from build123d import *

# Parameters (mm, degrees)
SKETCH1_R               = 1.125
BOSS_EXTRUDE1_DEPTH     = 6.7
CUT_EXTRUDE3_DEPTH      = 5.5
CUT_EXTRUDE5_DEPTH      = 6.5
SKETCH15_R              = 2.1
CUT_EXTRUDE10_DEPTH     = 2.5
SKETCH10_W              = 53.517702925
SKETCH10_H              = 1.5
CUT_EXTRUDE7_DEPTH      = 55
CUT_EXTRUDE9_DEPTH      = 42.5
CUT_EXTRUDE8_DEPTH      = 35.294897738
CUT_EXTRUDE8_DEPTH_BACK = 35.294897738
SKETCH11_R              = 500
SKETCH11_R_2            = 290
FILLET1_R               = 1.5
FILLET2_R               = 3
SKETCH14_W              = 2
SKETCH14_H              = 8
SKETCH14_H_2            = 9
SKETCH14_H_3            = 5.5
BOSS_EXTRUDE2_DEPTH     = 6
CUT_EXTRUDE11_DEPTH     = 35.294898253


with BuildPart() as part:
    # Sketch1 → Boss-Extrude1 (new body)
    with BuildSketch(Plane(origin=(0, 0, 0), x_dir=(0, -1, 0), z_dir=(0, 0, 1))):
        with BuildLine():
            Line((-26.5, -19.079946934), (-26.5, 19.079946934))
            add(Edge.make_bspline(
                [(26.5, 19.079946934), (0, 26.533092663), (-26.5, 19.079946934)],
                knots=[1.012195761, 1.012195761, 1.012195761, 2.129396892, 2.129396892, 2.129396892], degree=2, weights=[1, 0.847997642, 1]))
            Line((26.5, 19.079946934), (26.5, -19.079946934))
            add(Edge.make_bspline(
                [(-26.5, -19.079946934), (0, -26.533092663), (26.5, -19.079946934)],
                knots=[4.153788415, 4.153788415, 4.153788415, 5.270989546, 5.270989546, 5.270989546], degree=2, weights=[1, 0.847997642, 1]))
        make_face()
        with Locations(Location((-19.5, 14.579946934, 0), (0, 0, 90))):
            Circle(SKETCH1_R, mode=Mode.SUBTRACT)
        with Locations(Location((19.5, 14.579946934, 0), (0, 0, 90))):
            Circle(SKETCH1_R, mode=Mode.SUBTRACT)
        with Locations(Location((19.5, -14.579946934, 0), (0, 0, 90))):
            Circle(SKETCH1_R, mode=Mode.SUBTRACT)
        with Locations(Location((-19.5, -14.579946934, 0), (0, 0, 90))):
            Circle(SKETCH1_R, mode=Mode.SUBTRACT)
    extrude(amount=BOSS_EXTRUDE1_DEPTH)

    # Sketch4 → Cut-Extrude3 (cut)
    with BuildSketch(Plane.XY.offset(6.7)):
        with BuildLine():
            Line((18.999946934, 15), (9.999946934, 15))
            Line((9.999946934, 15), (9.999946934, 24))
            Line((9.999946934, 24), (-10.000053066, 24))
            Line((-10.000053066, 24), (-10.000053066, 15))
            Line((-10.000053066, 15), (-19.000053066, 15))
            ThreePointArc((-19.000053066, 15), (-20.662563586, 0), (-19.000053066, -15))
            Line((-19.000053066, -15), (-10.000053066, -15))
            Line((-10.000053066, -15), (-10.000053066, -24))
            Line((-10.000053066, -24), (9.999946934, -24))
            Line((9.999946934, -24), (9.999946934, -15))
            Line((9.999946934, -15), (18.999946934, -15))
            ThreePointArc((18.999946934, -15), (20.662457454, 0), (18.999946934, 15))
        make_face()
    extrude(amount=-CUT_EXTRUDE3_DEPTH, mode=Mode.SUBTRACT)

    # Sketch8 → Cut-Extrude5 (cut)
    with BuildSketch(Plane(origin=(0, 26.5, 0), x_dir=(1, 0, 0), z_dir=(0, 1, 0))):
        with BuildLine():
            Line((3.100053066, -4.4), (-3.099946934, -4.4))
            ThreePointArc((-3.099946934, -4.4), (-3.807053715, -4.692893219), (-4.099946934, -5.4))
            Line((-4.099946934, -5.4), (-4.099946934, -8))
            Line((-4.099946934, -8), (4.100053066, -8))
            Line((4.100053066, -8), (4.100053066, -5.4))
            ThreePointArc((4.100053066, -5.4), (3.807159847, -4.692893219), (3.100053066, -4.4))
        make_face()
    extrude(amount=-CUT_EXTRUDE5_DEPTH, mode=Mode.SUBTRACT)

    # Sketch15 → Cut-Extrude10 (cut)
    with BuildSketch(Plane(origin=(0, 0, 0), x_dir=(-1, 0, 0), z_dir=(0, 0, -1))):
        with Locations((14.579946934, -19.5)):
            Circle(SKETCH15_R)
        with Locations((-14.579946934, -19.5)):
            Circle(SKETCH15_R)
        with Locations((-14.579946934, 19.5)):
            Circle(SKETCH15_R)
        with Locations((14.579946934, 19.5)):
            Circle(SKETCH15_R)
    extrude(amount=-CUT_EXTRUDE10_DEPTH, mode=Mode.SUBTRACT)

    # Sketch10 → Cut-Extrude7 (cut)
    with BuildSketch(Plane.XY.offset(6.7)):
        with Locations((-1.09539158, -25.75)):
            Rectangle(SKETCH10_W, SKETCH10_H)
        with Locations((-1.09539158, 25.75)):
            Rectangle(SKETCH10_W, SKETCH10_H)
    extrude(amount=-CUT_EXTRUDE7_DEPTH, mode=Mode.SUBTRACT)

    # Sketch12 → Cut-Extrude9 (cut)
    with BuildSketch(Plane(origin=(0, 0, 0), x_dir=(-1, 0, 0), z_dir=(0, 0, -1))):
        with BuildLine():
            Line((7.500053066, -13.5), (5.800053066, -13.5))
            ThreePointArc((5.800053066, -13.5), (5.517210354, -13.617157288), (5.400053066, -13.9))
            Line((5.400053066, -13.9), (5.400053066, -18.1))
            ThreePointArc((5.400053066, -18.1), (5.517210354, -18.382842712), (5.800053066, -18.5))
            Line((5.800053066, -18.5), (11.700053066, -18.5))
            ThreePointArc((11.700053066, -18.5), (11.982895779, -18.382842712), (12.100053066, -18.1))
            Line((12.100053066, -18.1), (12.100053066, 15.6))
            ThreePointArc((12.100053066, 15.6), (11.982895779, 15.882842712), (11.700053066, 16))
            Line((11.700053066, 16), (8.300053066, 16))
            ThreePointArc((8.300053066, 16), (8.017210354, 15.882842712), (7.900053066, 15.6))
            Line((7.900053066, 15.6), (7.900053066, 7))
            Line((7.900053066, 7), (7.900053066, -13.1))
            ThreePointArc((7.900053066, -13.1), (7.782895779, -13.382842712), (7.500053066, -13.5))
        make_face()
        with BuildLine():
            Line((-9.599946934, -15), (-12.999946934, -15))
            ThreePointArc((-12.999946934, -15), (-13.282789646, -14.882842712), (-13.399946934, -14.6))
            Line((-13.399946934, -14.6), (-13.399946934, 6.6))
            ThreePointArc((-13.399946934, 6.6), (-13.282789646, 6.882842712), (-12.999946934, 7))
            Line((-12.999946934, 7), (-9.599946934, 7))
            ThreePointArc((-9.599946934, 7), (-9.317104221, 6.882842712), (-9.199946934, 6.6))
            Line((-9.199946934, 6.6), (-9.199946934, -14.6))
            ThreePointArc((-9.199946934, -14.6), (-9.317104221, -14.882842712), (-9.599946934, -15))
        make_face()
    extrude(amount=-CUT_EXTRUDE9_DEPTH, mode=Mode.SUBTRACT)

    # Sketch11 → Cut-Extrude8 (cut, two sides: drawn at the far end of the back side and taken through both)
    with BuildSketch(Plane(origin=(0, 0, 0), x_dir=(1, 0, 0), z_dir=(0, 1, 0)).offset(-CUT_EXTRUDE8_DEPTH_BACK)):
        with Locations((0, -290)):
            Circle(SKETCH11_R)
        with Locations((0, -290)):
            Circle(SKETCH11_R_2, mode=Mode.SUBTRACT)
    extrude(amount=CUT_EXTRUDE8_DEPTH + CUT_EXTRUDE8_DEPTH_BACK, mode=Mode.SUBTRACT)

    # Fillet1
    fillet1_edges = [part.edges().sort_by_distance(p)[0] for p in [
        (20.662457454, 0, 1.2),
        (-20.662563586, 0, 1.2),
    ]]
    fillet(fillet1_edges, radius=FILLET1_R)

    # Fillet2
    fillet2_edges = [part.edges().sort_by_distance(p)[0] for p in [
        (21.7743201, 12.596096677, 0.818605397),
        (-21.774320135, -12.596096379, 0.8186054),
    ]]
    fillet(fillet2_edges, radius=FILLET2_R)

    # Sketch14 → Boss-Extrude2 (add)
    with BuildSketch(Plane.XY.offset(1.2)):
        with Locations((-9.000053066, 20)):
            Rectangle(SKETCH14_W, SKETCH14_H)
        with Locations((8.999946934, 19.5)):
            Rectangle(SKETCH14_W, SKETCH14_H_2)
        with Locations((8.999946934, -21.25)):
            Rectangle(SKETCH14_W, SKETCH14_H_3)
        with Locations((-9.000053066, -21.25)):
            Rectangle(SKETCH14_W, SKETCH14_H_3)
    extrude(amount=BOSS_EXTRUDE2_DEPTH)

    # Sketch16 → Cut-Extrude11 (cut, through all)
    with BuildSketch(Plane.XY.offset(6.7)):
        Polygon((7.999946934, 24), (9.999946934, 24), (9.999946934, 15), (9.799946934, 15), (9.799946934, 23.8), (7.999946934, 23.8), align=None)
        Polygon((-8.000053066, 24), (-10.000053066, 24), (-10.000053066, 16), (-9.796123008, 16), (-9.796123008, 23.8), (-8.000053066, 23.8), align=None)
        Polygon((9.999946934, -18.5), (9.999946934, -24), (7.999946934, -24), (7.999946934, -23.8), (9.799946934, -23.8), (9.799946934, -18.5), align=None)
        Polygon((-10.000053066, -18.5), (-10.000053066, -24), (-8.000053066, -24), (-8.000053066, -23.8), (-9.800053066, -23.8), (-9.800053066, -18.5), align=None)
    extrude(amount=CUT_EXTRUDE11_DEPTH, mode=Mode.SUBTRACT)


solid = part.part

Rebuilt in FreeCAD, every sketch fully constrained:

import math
import FreeCAD as App
import Part
import Sketcher
Q = App.Units.Quantity


def edges_at(feature, points):
    """Names of the edges that pass closest to the given points."""
    edges = feature.Shape.Edges
    near = lambda p: min(range(len(edges)), key=lambda i: edges[i].distToShape(Part.Vertex(*p))[0])
    return sorted({f"Edge{near(p) + 1}" for p in points})


def add_polygon(sketch, points):
    """Adds a closed chain of lines whose ends are joined by coincident constraints."""
    first, n = sketch.GeometryCount, len(points)
    for a, b in zip(points, points[1:] + points[:1]):
        sketch.addGeometry(Part.LineSegment(App.Vector(*a, 0), App.Vector(*b, 0)), False)
    for i in range(n):
        sketch.addConstraint(Sketcher.Constraint("Coincident", first + i, 2, first + (i + 1) % n, 1))

doc = App.newDocument("Part")
params = doc.addObject("Spreadsheet::Sheet", "Params")
for row, (alias, value) in enumerate([
    ("sketch1_diameter", "2.25 mm"),
    ("pad1_length", "6.7 mm"),
    ("sketch2_radius", "68.5 mm"),
    ("sketch2_width", "9 mm"),
    ("sketch2_width2", "20 mm"),
    ("pocket1_length", "5.5 mm"),
    ("sketch3_radius", "1 mm"),
    ("sketch3_width", "6.2 mm"),
    ("sketch3_height", "2.6 mm"),
    ("pocket2_length", "6.5 mm"),
    ("sketch4_diameter", "4.2 mm"),
    ("pocket3_length", "2.5 mm"),
    ("sketch5_height", "1.5 mm"),
    ("pocket4_length", "55 mm"),
    ("sketch6_radius", "0.4 mm"),
    ("sketch6_width", "1.7 mm"),
    ("sketch6_width2", "5.9 mm"),
    ("sketch6_height", "4.2 mm"),
    ("sketch6_height2", "33.7 mm"),
    ("pocket5_length", "42.5 mm"),
    ("sketch7_diameter", "1000 mm"),
    ("sketch7_diameter2", "580 mm"),
    ("fillet_radius", "1.5 mm"),
    ("fillet2_radius", "3 mm"),
    ("sketch8_width", "2 mm"),
    ("sketch8_height", "8 mm"),
    ("sketch8_height2", "9 mm"),
    ("sketch8_height3", "5.5 mm"),
    ("pad2_length", "6 mm"),
    ("sketch9_width", "2 mm"),
    ("sketch9_height", "9 mm"),
    ("sketch9_height2", "8 mm"),
    ("sketch9_width2", "1.8 mm"),
    ("sketch9_height3", "5.5 mm"),
], start=1):
    params.set(f"A{row}", alias)
    params.set(f"B{row}", "=" + value)
    params.setAlias(f"B{row}", alias)

body = doc.addObject("PartDesign::Body", "Body")

# Sketch on XY plane
sketch1 = body.newObject("Sketcher::SketchObject", "Sketch")
sketch1.AttachmentSupport = (doc.getObject("XY_Plane"), [""])
sketch1.MapMode = "FlatFace"
sketch1.addGeometry([
    Part.LineSegment(App.Vector(19.079947, 26.5, 0), App.Vector(-19.079947, 26.5, 0)),  # 0
    Part.BSplineCurve([App.Vector(-19.079947, 26.5, 0), App.Vector(-26.533093, 0, 0), App.Vector(-19.079947, -26.5, 0)], [3, 3], [4.153788415, 5.270989546], False, 2, [1, 0.847997642, 1], False),  # 1
    Part.LineSegment(App.Vector(-19.079947, -26.5, 0), App.Vector(19.079947, -26.5, 0)),  # 2
    Part.BSplineCurve([App.Vector(19.079947, -26.5, 0), App.Vector(26.533093, 0, 0), App.Vector(19.079947, 26.5, 0)], [3, 3], [1.012195761, 2.129396892], False, 2, [1, 0.847997642, 1], False),  # 3
    Part.Circle(App.Vector(-14.579947, -19.5, 0), App.Vector(0, 0, 1), 1.125),  # 4
    Part.Circle(App.Vector(-14.579947, 19.5, 0), App.Vector(0, 0, 1), 1.125),  # 5
    Part.Circle(App.Vector(14.579947, -19.5, 0), App.Vector(0, 0, 1), 1.125),  # 6
    Part.Circle(App.Vector(14.579947, 19.5, 0), App.Vector(0, 0, 1), 1.125),  # 7
], False)
sketch1.addConstraint([
    Sketcher.Constraint("Block", 1),
    Sketcher.Constraint("Block", 3),
    Sketcher.Constraint("Coincident", 0, 2, 1, 1),
    Sketcher.Constraint("Coincident", 1, 2, 2, 1),
    Sketcher.Constraint("Coincident", 2, 2, 3, 1),
    Sketcher.Constraint("Coincident", 3, 2, 0, 1),
    Sketcher.Constraint("Equal", 4, 5),
    Sketcher.Constraint("Equal", 5, 6),
    Sketcher.Constraint("Equal", 6, 7),
    Sketcher.Constraint("Symmetric", 5, 3, 6, 3, -1, 1),
    Sketcher.Constraint("Symmetric", 4, 3, 7, 3, -1, 1),
    Sketcher.Constraint("Symmetric", 4, 3, 6, 3, -2),
    Sketcher.Constraint("Diameter", 4, Q("2.25 mm")),
    Sketcher.Constraint("DistanceY", 4, 3, 5, 3, Q("39 mm")),
    Sketcher.Constraint("DistanceX", 0, 2, 5, 3, Q("4.5 mm")),
])
sketch1.setExpression("Constraints[12]", "Params.sketch1_diameter")
pad1 = body.newObject("PartDesign::Pad", "Pad")
pad1.Profile = sketch1
pad1.setExpression("Length", "Params.pad1_length")

# Sketch on XY plane
sketch2 = body.newObject("Sketcher::SketchObject", "Sketch001")
sketch2.AttachmentSupport = (doc.getObject("XY_Plane"), [""])
sketch2.MapMode = "FlatFace"
sketch2.AttachmentOffset = App.Placement(App.Vector(0, 0, 6.7), App.Rotation())
sketch2.addGeometry([
    Part.LineSegment(App.Vector(18.999947, 15, 0), App.Vector(9.999947, 15, 0)),  # 0
    Part.LineSegment(App.Vector(9.999947, 15, 0), App.Vector(9.999947, 24, 0)),  # 1
    Part.LineSegment(App.Vector(9.999947, 24, 0), App.Vector(-10.000053, 24, 0)),  # 2
    Part.LineSegment(App.Vector(-10.000053, 24, 0), App.Vector(-10.000053, 15, 0)),  # 3
    Part.LineSegment(App.Vector(-10.000053, 15, 0), App.Vector(-19.000053, 15, 0)),  # 4
    Part.ArcOfCircle(Part.Circle(App.Vector(47.837436, 0, 0), App.Vector(0, 0, 1), 68.5), math.radians(167.350981), math.radians(192.649019)),  # 5
    Part.LineSegment(App.Vector(-19.000053, -15, 0), App.Vector(-10.000053, -15, 0)),  # 6
    Part.LineSegment(App.Vector(-10.000053, -15, 0), App.Vector(-10.000053, -24, 0)),  # 7
    Part.LineSegment(App.Vector(-10.000053, -24, 0), App.Vector(9.999947, -24, 0)),  # 8
    Part.LineSegment(App.Vector(9.999947, -24, 0), App.Vector(9.999947, -15, 0)),  # 9
    Part.LineSegment(App.Vector(9.999947, -15, 0), App.Vector(18.999947, -15, 0)),  # 10
    Part.ArcOfCircle(Part.Circle(App.Vector(-47.837543, 0, 0), App.Vector(0, 0, 1), 68.5), math.radians(-12.649019), math.radians(12.649019)),  # 11
], False)
sketch2.addConstraint([
    Sketcher.Constraint("Coincident", 0, 2, 1, 1),
    Sketcher.Constraint("Coincident", 1, 2, 2, 1),
    Sketcher.Constraint("Coincident", 2, 2, 3, 1),
    Sketcher.Constraint("Coincident", 3, 2, 4, 1),
    Sketcher.Constraint("Coincident", 4, 2, 5, 1),
    Sketcher.Constraint("Coincident", 5, 2, 6, 1),
    Sketcher.Constraint("Coincident", 6, 2, 7, 1),
    Sketcher.Constraint("Coincident", 7, 2, 8, 1),
    Sketcher.Constraint("Coincident", 8, 2, 9, 1),
    Sketcher.Constraint("Coincident", 9, 2, 10, 1),
    Sketcher.Constraint("Coincident", 10, 2, 11, 1),
    Sketcher.Constraint("Coincident", 11, 2, 0, 1),
    Sketcher.Constraint("Horizontal", 0),
    Sketcher.Constraint("Vertical", 1),
    Sketcher.Constraint("Horizontal", 2),
    Sketcher.Constraint("Vertical", 3),
    Sketcher.Constraint("Horizontal", 4),
    Sketcher.Constraint("Horizontal", 6),
    Sketcher.Constraint("Vertical", 7),
    Sketcher.Constraint("Horizontal", 8),
    Sketcher.Constraint("Vertical", 9),
    Sketcher.Constraint("Horizontal", 10),
    Sketcher.Constraint("Equal", 5, 11),
    Sketcher.Constraint("Symmetric", 4, 2, 5, 2, -1),
    Sketcher.Constraint("Symmetric", 2, 2, 7, 2, -1),
    Sketcher.Constraint("Symmetric", 0, 2, 9, 2, -1),
    Sketcher.Constraint("PointOnObject", 11, 3, -1),
    Sketcher.Constraint("Horizontal", 0, 2, 3, 2),
    Sketcher.Constraint("Equal", 0, 4),
    Sketcher.Constraint("Equal", 10, 1),
    Sketcher.Constraint("Radius", 5, Q("68.5 mm")),
    Sketcher.Constraint("DistanceX", 0, 2, 0, 1, Q("9 mm")),
    Sketcher.Constraint("DistanceX", 2, 2, 2, 1, Q("20 mm")),
    Sketcher.Constraint("DistanceY", -1, 1, 0, 2, Q("15 mm")),
    Sketcher.Constraint("DistanceX", -1, 1, 5, 3, Q("47.837436 mm")),
])
sketch2.setExpression("Constraints[30]", "Params.sketch2_radius")
sketch2.setExpression("Constraints[31]", "Params.sketch2_width")
sketch2.setExpression("Constraints[32]", "Params.sketch2_width2")
pocket1 = body.newObject("PartDesign::Pocket", "Pocket")
pocket1.Profile = sketch2
pocket1.setExpression("Length", "Params.pocket1_length")

# Sketch on XZ plane
sketch3 = body.newObject("Sketcher::SketchObject", "Sketch002")
sketch3.AttachmentSupport = (doc.getObject("XZ_Plane"), [""])
sketch3.MapMode = "FlatFace"
sketch3.AttachmentOffset = App.Placement(App.Vector(0, 0, -26.5), App.Rotation())
sketch3.addGeometry([
    Part.LineSegment(App.Vector(3.100053, 4.4, 0), App.Vector(-3.099947, 4.4, 0)),  # 0
    Part.ArcOfCircle(Part.Circle(App.Vector(-3.099947, 5.4, 0), App.Vector(0, 0, 1), 1), math.radians(-180), math.radians(-90)),  # 1
    Part.LineSegment(App.Vector(-4.099947, 5.4, 0), App.Vector(-4.099947, 8, 0)),  # 2
    Part.LineSegment(App.Vector(-4.099947, 8, 0), App.Vector(4.100053, 8, 0)),  # 3
    Part.LineSegment(App.Vector(4.100053, 8, 0), App.Vector(4.100053, 5.4, 0)),  # 4
    Part.ArcOfCircle(Part.Circle(App.Vector(3.100053, 5.4, 0), App.Vector(0, 0, 1), 1), math.radians(-90), math.radians(0)),  # 5
], False)
sketch3.addConstraint([
    Sketcher.Constraint("Tangent", 0, 2, 1, 2),
    Sketcher.Constraint("Tangent", 1, 1, 2, 1),
    Sketcher.Constraint("Coincident", 2, 2, 3, 1),
    Sketcher.Constraint("Coincident", 3, 2, 4, 1),
    Sketcher.Constraint("Tangent", 4, 2, 5, 2),
    Sketcher.Constraint("Tangent", 5, 1, 0, 1),
    Sketcher.Constraint("Horizontal", 0),
    Sketcher.Constraint("Vertical", 2),
    Sketcher.Constraint("Horizontal", 3),
    Sketcher.Constraint("Vertical", 4),
    Sketcher.Constraint("Equal", 1, 5),
    Sketcher.Constraint("Radius", 1, Q("1 mm")),
    Sketcher.Constraint("DistanceX", 0, 2, 0, 1, Q("6.2 mm")),
    Sketcher.Constraint("DistanceY", 2, 1, 2, 2, Q("2.6 mm")),
    Sketcher.Constraint("DistanceY", -1, 1, 2, 2, Q("8 mm")),
    Sketcher.Constraint("DistanceX", 1, 3, -1, 1, Q("3.099947 mm")),
])
sketch3.setExpression("Constraints[11]", "Params.sketch3_radius")
sketch3.setExpression("Constraints[12]", "Params.sketch3_width")
sketch3.setExpression("Constraints[13]", "Params.sketch3_height")
pocket2 = body.newObject("PartDesign::Pocket", "Pocket001")
pocket2.Profile = sketch3
pocket2.setExpression("Length", "Params.pocket2_length")
pocket2.Reversed = True

# Sketch on XY plane
sketch4 = body.newObject("Sketcher::SketchObject", "Sketch003")
sketch4.AttachmentSupport = (doc.getObject("XY_Plane"), [""])
sketch4.MapMode = "FlatFace"
sketch4.addGeometry([
    Part.Circle(App.Vector(-14.579947, -19.5, 0), App.Vector(0, 0, 1), 2.1),
    Part.Circle(App.Vector(14.579947, -19.5, 0), App.Vector(0, 0, 1), 2.1),
    Part.Circle(App.Vector(14.579947, 19.5, 0), App.Vector(0, 0, 1), 2.1),
    Part.Circle(App.Vector(-14.579947, 19.5, 0), App.Vector(0, 0, 1), 2.1),
], False)
sketch4.addConstraint([
    Sketcher.Constraint("Equal", 0, 1),
    Sketcher.Constraint("Equal", 1, 2),
    Sketcher.Constraint("Equal", 2, 3),
    Sketcher.Constraint("Symmetric", 0, 3, 2, 3, -1, 1),
    Sketcher.Constraint("Symmetric", 1, 3, 3, 3, -1, 1),
    Sketcher.Constraint("Symmetric", 0, 3, 1, 3, -2),
    Sketcher.Constraint("Diameter", 0, Q("4.2 mm")),
    Sketcher.Constraint("DistanceY", 1, 3, 2, 3, Q("39 mm")),
    Sketcher.Constraint("DistanceX", 0, 3, -1, 1, Q("14.579947 mm")),
])
sketch4.setExpression("Constraints[6]", "Params.sketch4_diameter")
pocket3 = body.newObject("PartDesign::Pocket", "Pocket002")
pocket3.Profile = sketch4
pocket3.setExpression("Length", "Params.pocket3_length")
pocket3.Reversed = True

# Sketch on XY plane
sketch5 = body.newObject("Sketcher::SketchObject", "Sketch004")
sketch5.AttachmentSupport = (doc.getObject("XY_Plane"), [""])
sketch5.MapMode = "FlatFace"
sketch5.AttachmentOffset = App.Placement(App.Vector(0, 0, 6.7), App.Rotation())
add_polygon(sketch5, [(-27.854243, -25), (-27.854243, -26.5), (25.66346, -26.5), (25.66346, -25)])  # lines 0-3
add_polygon(sketch5, [(-27.854243, 26.5), (-27.854243, 25), (25.66346, 25), (25.66346, 26.5)])  # lines 4-7
sketch5.addConstraint([
    Sketcher.Constraint("Vertical", 0),
    Sketcher.Constraint("Horizontal", 1),
    Sketcher.Constraint("Vertical", 2),
    Sketcher.Constraint("Horizontal", 3),
    Sketcher.Constraint("Vertical", 4),
    Sketcher.Constraint("Horizontal", 5),
    Sketcher.Constraint("Vertical", 6),
    Sketcher.Constraint("Horizontal", 7),
    Sketcher.Constraint("Symmetric", 3, 2, 4, 2, -1),
    Sketcher.Constraint("Symmetric", 1, 2, 6, 2, -1),
    Sketcher.Constraint("DistanceY", 0, 2, 0, 1, Q("1.5 mm")),
    Sketcher.Constraint("DistanceY", 2, 2, -1, 1, Q("25 mm")),
    Sketcher.Constraint("DistanceX", 1, 1, 1, 2, Q("53.517703 mm")),
    Sketcher.Constraint("DistanceX", -1, 1, 1, 2, Q("25.66346 mm")),
])
sketch5.setExpression("Constraints[18]", "Params.sketch5_height")
pocket4 = body.newObject("PartDesign::Pocket", "Pocket003")
pocket4.Profile = sketch5
pocket4.setExpression("Length", "Params.pocket4_length")

# Sketch on XY plane
sketch6 = body.newObject("Sketcher::SketchObject", "Sketch005")
sketch6.AttachmentSupport = (doc.getObject("XY_Plane"), [""])
sketch6.MapMode = "FlatFace"
sketch6.addGeometry([
    Part.LineSegment(App.Vector(-7.500053, -13.5, 0), App.Vector(-5.800053, -13.5, 0)),  # 0
    Part.ArcOfCircle(Part.Circle(App.Vector(-5.800053, -13.9, 0), App.Vector(0, 0, 1), 0.4), math.radians(0), math.radians(90)),  # 1
    Part.LineSegment(App.Vector(-5.400053, -13.9, 0), App.Vector(-5.400053, -18.1, 0)),  # 2
    Part.ArcOfCircle(Part.Circle(App.Vector(-5.800053, -18.1, 0), App.Vector(0, 0, 1), 0.4), math.radians(-90), math.radians(0)),  # 3
    Part.LineSegment(App.Vector(-5.800053, -18.5, 0), App.Vector(-11.700053, -18.5, 0)),  # 4
    Part.ArcOfCircle(Part.Circle(App.Vector(-11.700053, -18.1, 0), App.Vector(0, 0, 1), 0.4), math.radians(180), math.radians(270)),  # 5
    Part.LineSegment(App.Vector(-12.100053, -18.1, 0), App.Vector(-12.100053, 15.6, 0)),  # 6
    Part.ArcOfCircle(Part.Circle(App.Vector(-11.700053, 15.6, 0), App.Vector(0, 0, 1), 0.4), math.radians(90), math.radians(180)),  # 7
    Part.LineSegment(App.Vector(-11.700053, 16, 0), App.Vector(-8.300053, 16, 0)),  # 8
    Part.ArcOfCircle(Part.Circle(App.Vector(-8.300053, 15.6, 0), App.Vector(0, 0, 1), 0.4), math.radians(0), math.radians(90)),  # 9
    Part.LineSegment(App.Vector(-7.900053, 15.6, 0), App.Vector(-7.900053, -13.1, 0)),  # 10
    Part.ArcOfCircle(Part.Circle(App.Vector(-7.500053, -13.1, 0), App.Vector(0, 0, 1), 0.4), math.radians(180), math.radians(270)),  # 11
    Part.LineSegment(App.Vector(12.999947, -15, 0), App.Vector(9.599947, -15, 0)),  # 12
    Part.ArcOfCircle(Part.Circle(App.Vector(9.599947, -14.6, 0), App.Vector(0, 0, 1), 0.4), math.radians(180), math.radians(270)),  # 13
    Part.LineSegment(App.Vector(9.199947, -14.6, 0), App.Vector(9.199947, 6.6, 0)),  # 14
    Part.ArcOfCircle(Part.Circle(App.Vector(9.599947, 6.6, 0), App.Vector(0, 0, 1), 0.4), math.radians(90), math.radians(180)),  # 15
    Part.LineSegment(App.Vector(9.599947, 7, 0), App.Vector(12.999947, 7, 0)),  # 16
    Part.ArcOfCircle(Part.Circle(App.Vector(12.999947, 6.6, 0), App.Vector(0, 0, 1), 0.4), math.radians(0), math.radians(90)),  # 17
    Part.LineSegment(App.Vector(13.399947, 6.6, 0), App.Vector(13.399947, -14.6, 0)),  # 18
    Part.ArcOfCircle(Part.Circle(App.Vector(12.999947, -14.6, 0), App.Vector(0, 0, 1), 0.4), math.radians(-90), math.radians(0)),  # 19
], False)
sketch6.addConstraint([
    Sketcher.Constraint("Tangent", 0, 2, 1, 2),
    Sketcher.Constraint("Tangent", 1, 1, 2, 1),
    Sketcher.Constraint("Tangent", 2, 2, 3, 2),
    Sketcher.Constraint("Tangent", 3, 1, 4, 1),
    Sketcher.Constraint("Tangent", 4, 2, 5, 2),
    Sketcher.Constraint("Tangent", 5, 1, 6, 1),
    Sketcher.Constraint("Tangent", 6, 2, 7, 2),
    Sketcher.Constraint("Tangent", 7, 1, 8, 1),
    Sketcher.Constraint("Tangent", 8, 2, 9, 2),
    Sketcher.Constraint("Tangent", 9, 1, 10, 1),
    Sketcher.Constraint("Tangent", 10, 2, 11, 1),
    Sketcher.Constraint("Tangent", 11, 2, 0, 1),
    Sketcher.Constraint("Tangent", 12, 2, 13, 2),
    Sketcher.Constraint("Tangent", 13, 1, 14, 1),
    Sketcher.Constraint("Tangent", 14, 2, 15, 2),
    Sketcher.Constraint("Tangent", 15, 1, 16, 1),
    Sketcher.Constraint("Tangent", 16, 2, 17, 2),
    Sketcher.Constraint("Tangent", 17, 1, 18, 1),
    Sketcher.Constraint("Tangent", 18, 2, 19, 2),
    Sketcher.Constraint("Tangent", 19, 1, 12, 1),
    Sketcher.Constraint("Horizontal", 0),
    Sketcher.Constraint("Vertical", 2),
    Sketcher.Constraint("Horizontal", 4),
    Sketcher.Constraint("Vertical", 6),
    Sketcher.Constraint("Horizontal", 8),
    Sketcher.Constraint("Vertical", 10),
    Sketcher.Constraint("Horizontal", 12),
    Sketcher.Constraint("Vertical", 14),
    Sketcher.Constraint("Horizontal", 16),
    Sketcher.Constraint("Vertical", 18),
    Sketcher.Constraint("Equal", 1, 3),
    Sketcher.Constraint("Equal", 3, 5),
    Sketcher.Constraint("Equal", 5, 7),
    Sketcher.Constraint("Equal", 7, 9),
    Sketcher.Constraint("Equal", 9, 11),
    Sketcher.Constraint("Equal", 11, 13),
    Sketcher.Constraint("Equal", 13, 15),
    Sketcher.Constraint("Equal", 15, 17),
    Sketcher.Constraint("Equal", 17, 19),
    Sketcher.Constraint("Equal", 8, 12),
    Sketcher.Constraint("Radius", 1, Q("0.4 mm")),
    Sketcher.Constraint("DistanceX", 0, 1, 0, 2, Q("1.7 mm")),
    Sketcher.Constraint("DistanceX", 4, 2, 4, 1, Q("5.9 mm")),
    Sketcher.Constraint("DistanceY", 2, 2, 2, 1, Q("4.2 mm")),
    Sketcher.Constraint("DistanceY", 6, 1, 6, 2, Q("33.7 mm")),
    Sketcher.Constraint("DistanceY", 14, 1, 14, 2, Q("21.2 mm")),
    Sketcher.Constraint("DistanceY", -1, 1, 7, 1, Q("16 mm")),
    Sketcher.Constraint("DistanceY", 12, 2, -1, 1, Q("15 mm")),
    Sketcher.Constraint("DistanceX", 1, 1, 12, 2, Q("15 mm")),
    Sketcher.Constraint("DistanceX", 1, 3, -1, 1, Q("5.800053 mm")),
])
sketch6.setExpression("Constraints[40]", "Params.sketch6_radius")
sketch6.setExpression("Constraints[41]", "Params.sketch6_width")
sketch6.setExpression("Constraints[42]", "Params.sketch6_width2")
sketch6.setExpression("Constraints[43]", "Params.sketch6_height")
sketch6.setExpression("Constraints[44]", "Params.sketch6_height2")
pocket5 = body.newObject("PartDesign::Pocket", "Pocket004")
pocket5.Profile = sketch6
pocket5.setExpression("Length", "Params.pocket5_length")
pocket5.Reversed = True

# Sketch on XZ plane
sketch7 = body.newObject("Sketcher::SketchObject", "Sketch006")
sketch7.AttachmentSupport = (doc.getObject("XZ_Plane"), [""])
sketch7.MapMode = "FlatFace"
sketch7.addGeometry([
    Part.Circle(App.Vector(0, 290, 0), App.Vector(0, 0, 1), 500),
    Part.Circle(App.Vector(0, 290, 0), App.Vector(0, 0, 1), 290),
], False)
sketch7.addConstraint([
    Sketcher.Constraint("Coincident", 1, 3, 0, 3),
    Sketcher.Constraint("PointOnObject", 0, 3, -2),
    Sketcher.Constraint("Diameter", 0, Q("1000 mm")),
    Sketcher.Constraint("Diameter", 1, Q("580 mm")),
    Sketcher.Constraint("DistanceY", -1, 1, 0, 3, Q("290 mm")),
])
sketch7.setExpression("Constraints[2]", "Params.sketch7_diameter")
sketch7.setExpression("Constraints[3]", "Params.sketch7_diameter2")
pocket6 = body.newObject("PartDesign::Pocket", "Pocket005")
pocket6.Profile = sketch7
pocket6.Type = "ThroughAll"
pocket6.Midplane = True
doc.recompute()

fillet = body.newObject("PartDesign::Fillet", "Fillet")
fillet.Base = (pocket6, edges_at(pocket6, [(20.662, 0, 1.2), (-20.663, 0, 1.2)]))
fillet.setExpression("Radius", "Params.fillet_radius")
doc.recompute()

fillet2 = body.newObject("PartDesign::Fillet", "Fillet001")
fillet2.Base = (fillet, edges_at(fillet, [(22.5, 0, 0.874), (-22.5, 0, 0.874)]))
fillet2.setExpression("Radius", "Params.fillet2_radius")

# Sketch on XY plane
sketch8 = body.newObject("Sketcher::SketchObject", "Sketch007")
sketch8.AttachmentSupport = (doc.getObject("XY_Plane"), [""])
sketch8.MapMode = "FlatFace"
sketch8.AttachmentOffset = App.Placement(App.Vector(0, 0, 1.2), App.Rotation())
add_polygon(sketch8, [(-10.000053, 24), (-10.000053, 16), (-8.000053, 16), (-8.000053, 24)])  # lines 0-3
add_polygon(sketch8, [(7.999947, 24), (7.999947, 15), (9.999947, 15), (9.999947, 24)])  # lines 4-7
add_polygon(sketch8, [(7.999947, -18.5), (7.999947, -24), (9.999947, -24), (9.999947, -18.5)])  # lines 8-11
add_polygon(sketch8, [(-10.000053, -18.5), (-10.000053, -24), (-8.000053, -24), (-8.000053, -18.5)])  # lines 12-15
sketch8.addConstraint([
    Sketcher.Constraint("Vertical", 0),
    Sketcher.Constraint("Horizontal", 1),
    Sketcher.Constraint("Vertical", 2),
    Sketcher.Constraint("Horizontal", 3),
    Sketcher.Constraint("Vertical", 4),
    Sketcher.Constraint("Horizontal", 5),
    Sketcher.Constraint("Vertical", 6),
    Sketcher.Constraint("Horizontal", 7),
    Sketcher.Constraint("Vertical", 8),
    Sketcher.Constraint("Horizontal", 9),
    Sketcher.Constraint("Vertical", 10),
    Sketcher.Constraint("Horizontal", 11),
    Sketcher.Constraint("Vertical", 12),
    Sketcher.Constraint("Horizontal", 13),
    Sketcher.Constraint("Vertical", 14),
    Sketcher.Constraint("Horizontal", 15),
    Sketcher.Constraint("Symmetric", 7, 2, 8, 2, -1),
    Sketcher.Constraint("Symmetric", 3, 2, 12, 2, -1),
    Sketcher.Constraint("Horizontal", 3, 2, 6, 2),
    Sketcher.Constraint("Horizontal", 11, 2, 14, 2),
    Sketcher.Constraint("Vertical", 6, 2, 9, 2),
    Sketcher.Constraint("Vertical", 2, 2, 13, 2),
    Sketcher.Constraint("Equal", 3, 5),
    Sketcher.Constraint("DistanceX", 1, 1, 1, 2, Q("2 mm")),
    Sketcher.Constraint("DistanceY", 0, 2, 0, 1, Q("8 mm")),
    Sketcher.Constraint("DistanceY", 4, 2, 4, 1, Q("9 mm")),
    Sketcher.Constraint("DistanceY", 8, 2, 8, 1, Q("5.5 mm")),
    Sketcher.Constraint("DistanceY", -1, 1, 0, 2, Q("16 mm")),
    Sketcher.Constraint("DistanceX", 1, 2, 4, 2, Q("16 mm")),
    Sketcher.Constraint("DistanceX", 0, 2, -1, 1, Q("10.000053 mm")),
])
sketch8.setExpression("Constraints[39]", "Params.sketch8_width")
sketch8.setExpression("Constraints[40]", "Params.sketch8_height")
sketch8.setExpression("Constraints[41]", "Params.sketch8_height2")
sketch8.setExpression("Constraints[42]", "Params.sketch8_height3")
pad2 = body.newObject("PartDesign::Pad", "Pad001")
pad2.Profile = sketch8
pad2.setExpression("Length", "Params.pad2_length")

# Sketch on XY plane
sketch9 = body.newObject("Sketcher::SketchObject", "Sketch008")
sketch9.AttachmentSupport = (doc.getObject("XY_Plane"), [""])
sketch9.MapMode = "FlatFace"
sketch9.AttachmentOffset = App.Placement(App.Vector(0, 0, 6.7), App.Rotation())
add_polygon(sketch9, [(9.999947, 24), (7.999947, 24), (7.999947, 23.8), (9.799947, 23.8), (9.799947, 15), (9.999947, 15)])  # lines 0-5
add_polygon(sketch9, [(-8.000053, 24), (-10.000053, 24), (-10.000053, 16), (-9.796123, 16), (-9.796123, 23.8), (-8.000053, 23.8)])  # lines 6-11
add_polygon(sketch9, [(9.999947, -24), (9.999947, -18.5), (9.799947, -18.5), (9.799947, -23.8), (7.999947, -23.8), (7.999947, -24)])  # lines 12-17
add_polygon(sketch9, [(-10.000053, -18.5), (-10.000053, -24), (-8.000053, -24), (-8.000053, -23.8), (-9.800053, -23.8), (-9.800053, -18.5)])  # lines 18-23
sketch9.addConstraint([
    Sketcher.Constraint("Horizontal", 0),
    Sketcher.Constraint("Vertical", 1),
    Sketcher.Constraint("Horizontal", 2),
    Sketcher.Constraint("Vertical", 3),
    Sketcher.Constraint("Horizontal", 4),
    Sketcher.Constraint("Vertical", 5),
    Sketcher.Constraint("Horizontal", 6),
    Sketcher.Constraint("Vertical", 7),
    Sketcher.Constraint("Horizontal", 8),
    Sketcher.Constraint("Vertical", 9),
    Sketcher.Constraint("Horizontal", 10),
    Sketcher.Constraint("Vertical", 11),
    Sketcher.Constraint("Vertical", 12),
    Sketcher.Constraint("Horizontal", 13),
    Sketcher.Constraint("Vertical", 14),
    Sketcher.Constraint("Horizontal", 15),
    Sketcher.Constraint("Vertical", 16),
    Sketcher.Constraint("Horizontal", 17),
    Sketcher.Constraint("Vertical", 18),
    Sketcher.Constraint("Horizontal", 19),
    Sketcher.Constraint("Vertical", 20),
    Sketcher.Constraint("Horizontal", 21),
    Sketcher.Constraint("Vertical", 22),
    Sketcher.Constraint("Horizontal", 23),
    Sketcher.Constraint("Symmetric", 2, 2, 14, 2, -1),
    Sketcher.Constraint("Symmetric", 0, 2, 16, 2, -1),
    Sketcher.Constraint("Symmetric", 6, 2, 18, 2, -1),
    Sketcher.Constraint("Symmetric", 10, 2, 20, 2, -1),
    Sketcher.Constraint("Horizontal", 5, 2, 6, 2),
    Sketcher.Constraint("Horizontal", 2, 2, 9, 2),
    Sketcher.Constraint("Horizontal", 13, 2, 22, 2),
    Sketcher.Constraint("Vertical", 5, 2, 12, 2),
    Sketcher.Constraint("Equal", 0, 6),
    Sketcher.Constraint("Equal", 15, 21),
    Sketcher.Constraint("Equal", 23, 1),
    Sketcher.Constraint("DistanceX", 0, 2, 0, 1, Q("2 mm")),
    Sketcher.Constraint("DistanceY", 5, 1, 5, 2, Q("9 mm")),
    Sketcher.Constraint("DistanceY", 7, 2, 7, 1, Q("8 mm")),
    Sketcher.Constraint("DistanceX", 2, 1, 2, 2, Q("1.8 mm")),
    Sketcher.Constraint("DistanceY", 12, 1, 12, 2, Q("5.5 mm")),
    Sketcher.Constraint("DistanceY", -1, 1, 0, 2, Q("24 mm")),
    Sketcher.Constraint("DistanceX", 6, 2, 0, 2, Q("18 mm")),
    Sketcher.Constraint("DistanceX", 8, 1, 8, 2, Q("0.20393 mm")),
    Sketcher.Constraint("DistanceX", -1, 1, 0, 2, Q("7.999947 mm")),
])
sketch9.setExpression("Constraints[59]", "Params.sketch9_width")
sketch9.setExpression("Constraints[60]", "Params.sketch9_height")
sketch9.setExpression("Constraints[61]", "Params.sketch9_height2")
sketch9.setExpression("Constraints[62]", "Params.sketch9_width2")
sketch9.setExpression("Constraints[63]", "Params.sketch9_height3")
pocket7 = body.newObject("PartDesign::Pocket", "Pocket006")
pocket7.Profile = sketch9
pocket7.Type = "ThroughAll"
pocket7.Reversed = True

doc.recompute()
